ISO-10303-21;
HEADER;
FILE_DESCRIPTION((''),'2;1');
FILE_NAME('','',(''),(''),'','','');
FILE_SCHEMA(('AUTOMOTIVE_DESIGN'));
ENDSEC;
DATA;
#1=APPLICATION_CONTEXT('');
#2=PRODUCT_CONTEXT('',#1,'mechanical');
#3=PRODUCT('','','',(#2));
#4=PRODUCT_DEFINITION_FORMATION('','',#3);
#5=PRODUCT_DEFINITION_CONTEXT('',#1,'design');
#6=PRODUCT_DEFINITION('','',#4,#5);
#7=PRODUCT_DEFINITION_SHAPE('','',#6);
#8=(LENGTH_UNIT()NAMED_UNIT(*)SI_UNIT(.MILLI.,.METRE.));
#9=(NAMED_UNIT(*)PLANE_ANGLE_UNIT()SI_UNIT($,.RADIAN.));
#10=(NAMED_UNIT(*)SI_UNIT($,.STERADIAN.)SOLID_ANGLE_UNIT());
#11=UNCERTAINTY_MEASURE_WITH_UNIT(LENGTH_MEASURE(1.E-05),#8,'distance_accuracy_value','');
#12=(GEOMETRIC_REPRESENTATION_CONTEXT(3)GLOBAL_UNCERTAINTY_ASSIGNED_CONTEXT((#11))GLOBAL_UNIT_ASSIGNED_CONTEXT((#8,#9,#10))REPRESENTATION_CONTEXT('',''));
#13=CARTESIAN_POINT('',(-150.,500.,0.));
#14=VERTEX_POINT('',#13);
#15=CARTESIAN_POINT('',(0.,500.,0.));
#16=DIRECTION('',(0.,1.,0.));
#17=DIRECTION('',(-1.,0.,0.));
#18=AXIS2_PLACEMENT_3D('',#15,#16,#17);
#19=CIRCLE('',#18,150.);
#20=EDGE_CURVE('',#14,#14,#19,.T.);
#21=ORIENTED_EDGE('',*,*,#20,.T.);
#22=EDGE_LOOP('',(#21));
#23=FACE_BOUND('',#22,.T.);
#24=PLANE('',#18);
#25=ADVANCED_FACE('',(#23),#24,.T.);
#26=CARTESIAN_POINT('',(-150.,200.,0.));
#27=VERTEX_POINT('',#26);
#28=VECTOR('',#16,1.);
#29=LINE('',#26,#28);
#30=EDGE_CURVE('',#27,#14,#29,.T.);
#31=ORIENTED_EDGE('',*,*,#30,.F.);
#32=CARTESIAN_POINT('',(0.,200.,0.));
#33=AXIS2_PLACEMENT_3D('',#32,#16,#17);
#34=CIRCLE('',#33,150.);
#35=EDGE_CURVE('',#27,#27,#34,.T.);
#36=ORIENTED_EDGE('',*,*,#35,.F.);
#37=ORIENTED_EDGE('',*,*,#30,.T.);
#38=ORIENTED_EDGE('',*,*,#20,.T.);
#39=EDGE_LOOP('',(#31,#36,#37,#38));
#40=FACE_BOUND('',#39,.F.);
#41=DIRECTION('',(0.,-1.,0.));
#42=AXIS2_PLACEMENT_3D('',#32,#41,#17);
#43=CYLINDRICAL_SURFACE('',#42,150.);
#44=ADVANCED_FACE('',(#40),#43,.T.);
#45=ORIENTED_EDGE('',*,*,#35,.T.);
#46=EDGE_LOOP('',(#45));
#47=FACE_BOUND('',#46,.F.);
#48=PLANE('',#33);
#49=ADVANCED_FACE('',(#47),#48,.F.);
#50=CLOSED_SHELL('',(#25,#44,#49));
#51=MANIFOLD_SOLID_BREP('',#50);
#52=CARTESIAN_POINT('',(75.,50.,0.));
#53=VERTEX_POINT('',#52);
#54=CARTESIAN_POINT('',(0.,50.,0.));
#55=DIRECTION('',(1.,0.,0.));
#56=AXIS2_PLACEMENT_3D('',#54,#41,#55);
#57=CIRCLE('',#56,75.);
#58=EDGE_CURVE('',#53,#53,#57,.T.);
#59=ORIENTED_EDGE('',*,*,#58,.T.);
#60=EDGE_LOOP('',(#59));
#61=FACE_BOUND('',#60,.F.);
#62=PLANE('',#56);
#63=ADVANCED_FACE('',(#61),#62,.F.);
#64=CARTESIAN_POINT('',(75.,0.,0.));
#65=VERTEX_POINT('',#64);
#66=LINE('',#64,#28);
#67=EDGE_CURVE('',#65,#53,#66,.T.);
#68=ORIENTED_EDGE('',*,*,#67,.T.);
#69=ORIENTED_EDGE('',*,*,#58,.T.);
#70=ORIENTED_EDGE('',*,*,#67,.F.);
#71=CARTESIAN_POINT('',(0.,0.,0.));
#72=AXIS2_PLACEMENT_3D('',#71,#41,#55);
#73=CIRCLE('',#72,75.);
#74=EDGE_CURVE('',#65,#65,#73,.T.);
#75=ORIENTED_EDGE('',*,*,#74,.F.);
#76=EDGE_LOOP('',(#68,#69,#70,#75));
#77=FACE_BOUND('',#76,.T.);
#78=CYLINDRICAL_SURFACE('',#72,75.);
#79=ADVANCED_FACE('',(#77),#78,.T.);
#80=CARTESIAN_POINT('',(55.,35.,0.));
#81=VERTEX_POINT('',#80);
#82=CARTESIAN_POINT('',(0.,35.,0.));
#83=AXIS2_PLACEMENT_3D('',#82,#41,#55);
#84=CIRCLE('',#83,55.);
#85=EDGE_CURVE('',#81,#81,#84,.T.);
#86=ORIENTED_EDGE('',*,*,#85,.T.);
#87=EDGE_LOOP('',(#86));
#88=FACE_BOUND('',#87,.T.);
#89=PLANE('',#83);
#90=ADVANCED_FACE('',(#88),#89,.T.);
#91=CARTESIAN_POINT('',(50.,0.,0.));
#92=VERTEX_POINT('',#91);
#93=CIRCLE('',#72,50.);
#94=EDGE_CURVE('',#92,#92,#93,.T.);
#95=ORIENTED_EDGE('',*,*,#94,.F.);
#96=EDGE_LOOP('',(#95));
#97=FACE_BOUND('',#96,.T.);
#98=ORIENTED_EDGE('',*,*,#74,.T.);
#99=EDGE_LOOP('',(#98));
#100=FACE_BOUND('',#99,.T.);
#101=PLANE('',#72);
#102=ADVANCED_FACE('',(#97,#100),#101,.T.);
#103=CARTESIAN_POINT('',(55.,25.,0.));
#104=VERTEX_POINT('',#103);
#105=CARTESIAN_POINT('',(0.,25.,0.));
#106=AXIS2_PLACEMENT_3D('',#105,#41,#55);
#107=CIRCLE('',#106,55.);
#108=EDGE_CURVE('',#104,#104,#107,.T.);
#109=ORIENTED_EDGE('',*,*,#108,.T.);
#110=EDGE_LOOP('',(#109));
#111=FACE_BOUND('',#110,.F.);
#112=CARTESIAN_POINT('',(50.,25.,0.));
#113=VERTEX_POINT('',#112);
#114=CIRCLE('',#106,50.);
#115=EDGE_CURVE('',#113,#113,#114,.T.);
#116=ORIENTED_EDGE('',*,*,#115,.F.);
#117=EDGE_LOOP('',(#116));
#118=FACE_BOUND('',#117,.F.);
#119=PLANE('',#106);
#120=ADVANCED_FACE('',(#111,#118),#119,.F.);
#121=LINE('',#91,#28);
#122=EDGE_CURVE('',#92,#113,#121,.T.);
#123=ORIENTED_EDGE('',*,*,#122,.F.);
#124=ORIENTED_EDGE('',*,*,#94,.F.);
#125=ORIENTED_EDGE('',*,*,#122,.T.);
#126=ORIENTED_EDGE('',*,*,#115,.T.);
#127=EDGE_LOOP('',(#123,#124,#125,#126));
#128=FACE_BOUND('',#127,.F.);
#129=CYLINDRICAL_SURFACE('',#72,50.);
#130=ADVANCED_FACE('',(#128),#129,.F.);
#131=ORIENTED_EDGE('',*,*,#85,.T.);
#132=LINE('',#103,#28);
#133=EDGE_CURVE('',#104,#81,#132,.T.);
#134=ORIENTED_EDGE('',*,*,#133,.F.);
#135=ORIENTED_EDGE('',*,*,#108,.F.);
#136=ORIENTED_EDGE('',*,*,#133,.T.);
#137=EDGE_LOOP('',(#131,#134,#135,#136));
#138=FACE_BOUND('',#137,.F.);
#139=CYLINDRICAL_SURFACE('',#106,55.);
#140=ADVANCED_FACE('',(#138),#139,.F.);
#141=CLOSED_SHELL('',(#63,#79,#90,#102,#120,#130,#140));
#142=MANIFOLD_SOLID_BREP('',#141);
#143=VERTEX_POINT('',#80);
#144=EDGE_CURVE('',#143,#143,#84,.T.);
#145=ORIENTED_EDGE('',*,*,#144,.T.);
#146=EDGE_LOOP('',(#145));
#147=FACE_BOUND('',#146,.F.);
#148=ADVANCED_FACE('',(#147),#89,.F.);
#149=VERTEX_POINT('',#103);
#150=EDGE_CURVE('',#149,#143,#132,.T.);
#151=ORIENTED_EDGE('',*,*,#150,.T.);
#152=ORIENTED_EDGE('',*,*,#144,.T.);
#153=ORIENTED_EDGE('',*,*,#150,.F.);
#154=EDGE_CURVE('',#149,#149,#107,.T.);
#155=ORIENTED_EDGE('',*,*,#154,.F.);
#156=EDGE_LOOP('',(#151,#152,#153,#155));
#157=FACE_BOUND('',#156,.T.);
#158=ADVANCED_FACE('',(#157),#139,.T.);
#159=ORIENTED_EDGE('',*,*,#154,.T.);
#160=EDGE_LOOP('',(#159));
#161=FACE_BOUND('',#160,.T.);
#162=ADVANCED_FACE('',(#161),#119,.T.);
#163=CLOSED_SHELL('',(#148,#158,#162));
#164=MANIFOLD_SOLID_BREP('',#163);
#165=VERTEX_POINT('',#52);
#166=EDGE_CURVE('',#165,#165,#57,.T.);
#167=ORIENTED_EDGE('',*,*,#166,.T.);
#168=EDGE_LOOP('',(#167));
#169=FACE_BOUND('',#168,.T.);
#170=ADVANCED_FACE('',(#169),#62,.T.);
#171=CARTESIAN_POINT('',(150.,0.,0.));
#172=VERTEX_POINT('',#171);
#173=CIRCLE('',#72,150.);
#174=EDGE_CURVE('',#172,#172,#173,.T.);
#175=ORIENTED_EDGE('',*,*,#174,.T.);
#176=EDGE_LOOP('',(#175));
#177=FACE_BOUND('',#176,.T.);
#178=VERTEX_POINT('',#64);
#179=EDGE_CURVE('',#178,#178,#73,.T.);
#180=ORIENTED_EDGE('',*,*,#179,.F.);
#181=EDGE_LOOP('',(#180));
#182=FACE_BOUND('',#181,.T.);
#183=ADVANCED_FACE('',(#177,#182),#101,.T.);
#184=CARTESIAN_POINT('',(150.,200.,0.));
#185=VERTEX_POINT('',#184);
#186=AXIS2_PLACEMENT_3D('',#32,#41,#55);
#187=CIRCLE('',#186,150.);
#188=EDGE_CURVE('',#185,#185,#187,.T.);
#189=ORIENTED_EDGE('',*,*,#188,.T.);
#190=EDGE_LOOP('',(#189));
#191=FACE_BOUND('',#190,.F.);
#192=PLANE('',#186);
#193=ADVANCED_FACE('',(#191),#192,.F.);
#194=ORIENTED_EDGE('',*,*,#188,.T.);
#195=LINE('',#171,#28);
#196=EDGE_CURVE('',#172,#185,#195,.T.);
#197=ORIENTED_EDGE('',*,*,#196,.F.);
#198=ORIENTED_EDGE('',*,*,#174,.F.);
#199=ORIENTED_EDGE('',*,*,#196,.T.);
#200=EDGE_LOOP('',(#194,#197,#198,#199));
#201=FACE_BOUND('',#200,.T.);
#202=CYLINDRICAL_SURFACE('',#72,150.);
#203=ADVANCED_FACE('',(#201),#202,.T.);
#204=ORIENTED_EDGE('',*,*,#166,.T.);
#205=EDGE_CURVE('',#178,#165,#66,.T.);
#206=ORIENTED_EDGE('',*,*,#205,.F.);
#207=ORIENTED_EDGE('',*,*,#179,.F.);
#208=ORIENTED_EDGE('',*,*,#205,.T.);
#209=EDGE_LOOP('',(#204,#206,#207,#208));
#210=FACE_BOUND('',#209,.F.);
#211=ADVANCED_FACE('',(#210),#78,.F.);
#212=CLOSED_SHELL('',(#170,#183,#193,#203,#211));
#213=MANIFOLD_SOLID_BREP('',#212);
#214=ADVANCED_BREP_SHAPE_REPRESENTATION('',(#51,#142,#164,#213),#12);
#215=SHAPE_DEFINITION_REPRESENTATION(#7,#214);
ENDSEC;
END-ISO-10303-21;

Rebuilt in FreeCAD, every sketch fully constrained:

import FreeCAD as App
import Part
import Sketcher
Q = App.Units.Quantity

doc = App.newDocument("Part")
body = doc.addObject("PartDesign::Body", "Body")

# Sketch on XZ plane
sketch1 = body.newObject("Sketcher::SketchObject", "Sketch")
sketch1.AttachmentSupport = (doc.getObject("XZ_Plane"), [""])
sketch1.MapMode = "FlatFace"
sketch1.addGeometry(Part.Circle(App.Vector(0, 0, 0), App.Vector(0, 0, 1), 150), False)
sketch1.addConstraint([
    Sketcher.Constraint("Coincident", 0, 3, -1, 1),
    Sketcher.Constraint("Diameter", 0, Q("300 mm")),
])
pad1 = body.newObject("PartDesign::Pad", "Pad")
pad1.Profile = sketch1
pad1.Length = 200
pad1.Reversed = True

# Sketch on XZ plane
sketch2 = body.newObject("Sketcher::SketchObject", "Sketch001")
sketch2.AttachmentSupport = (doc.getObject("XZ_Plane"), [""])
sketch2.MapMode = "FlatFace"
sketch2.addGeometry(Part.Circle(App.Vector(0, 0, 0), App.Vector(0, 0, 1), 75), False)
sketch2.addConstraint([
    Sketcher.Constraint("Coincident", 0, 3, -1, 1),
    Sketcher.Constraint("Diameter", 0, Q("150 mm")),
])
pocket1 = body.newObject("PartDesign::Pocket", "Pocket")
pocket1.Profile = sketch2
pocket1.Length = 50
body2 = doc.addObject("PartDesign::Body", "Body001")

# Sketch on XZ plane
sketch3 = body2.newObject("Sketcher::SketchObject", "Sketch002")
sketch3.AttachmentSupport = (doc.getObject("XZ_Plane001"), [""])
sketch3.MapMode = "FlatFace"
sketch3.addGeometry(Part.Circle(App.Vector(0, 0, 0), App.Vector(0, 0, 1), 75), False)
sketch3.addConstraint([
    Sketcher.Constraint("Coincident", 0, 3, -1, 1),
    Sketcher.Constraint("Diameter", 0, Q("150 mm")),
])
pad2 = body2.newObject("PartDesign::Pad", "Pad001")
pad2.Profile = sketch3
pad2.Length = 50
pad2.Reversed = True

# Sketch on XZ plane
sketch4 = body2.newObject("Sketcher::SketchObject", "Sketch003")
sketch4.AttachmentSupport = (doc.getObject("XZ_Plane001"), [""])
sketch4.MapMode = "FlatFace"
sketch4.addGeometry(Part.Circle(App.Vector(0, 0, 0), App.Vector(0, 0, 1), 50), False)
sketch4.addConstraint([
    Sketcher.Constraint("Coincident", 0, 3, -1, 1),
    Sketcher.Constraint("Diameter", 0, Q("100 mm")),
])
pocket2 = body2.newObject("PartDesign::Pocket", "Pocket001")
pocket2.Profile = sketch4
pocket2.Length = 25

# Sketch on XZ plane
sketch5 = body2.newObject("Sketcher::SketchObject", "Sketch004")
sketch5.AttachmentSupport = (doc.getObject("XZ_Plane001"), [""])
sketch5.MapMode = "FlatFace"
sketch5.AttachmentOffset = App.Placement(App.Vector(0, 0, -25), App.Rotation())
sketch5.addGeometry(Part.Circle(App.Vector(0, 0, 0), App.Vector(0, 0, 1), 55), False)
sketch5.addConstraint([
    Sketcher.Constraint("Coincident", 0, 3, -1, 1),
    Sketcher.Constraint("Diameter", 0, Q("110 mm")),
])
pocket3 = body2.newObject("PartDesign::Pocket", "Pocket002")
pocket3.Profile = sketch5
pocket3.Length = 10
body3 = doc.addObject("PartDesign::Body", "Body002")

# Sketch on XZ plane
sketch6 = body3.newObject("Sketcher::SketchObject", "Sketch005")
sketch6.AttachmentSupport = (doc.getObject("XZ_Plane002"), [""])
sketch6.MapMode = "FlatFace"
sketch6.AttachmentOffset = App.Placement(App.Vector(0, 0, -25), App.Rotation())
sketch6.addGeometry(Part.Circle(App.Vector(0, 0, 0), App.Vector(0, 0, 1), 55), False)
sketch6.addConstraint([
    Sketcher.Constraint("Coincident", 0, 3, -1, 1),
    Sketcher.Constraint("Diameter", 0, Q("110 mm")),
])
pad3 = body3.newObject("PartDesign::Pad", "Pad002")
pad3.Profile = sketch6
pad3.Length = 10
pad3.Reversed = True
body4 = doc.addObject("PartDesign::Body", "Body003")

# Sketch on XZ plane
sketch7 = body4.newObject("Sketcher::SketchObject", "Sketch006")
sketch7.AttachmentSupport = (doc.getObject("XZ_Plane003"), [""])
sketch7.MapMode = "FlatFace"
sketch7.AttachmentOffset = App.Placement(App.Vector(0, 0, -200), App.Rotation())
sketch7.addGeometry(Part.Circle(App.Vector(0, 0, 0), App.Vector(0, 0, 1), 150), False)
sketch7.addConstraint([
    Sketcher.Constraint("Coincident", 0, 3, -1, 1),
    Sketcher.Constraint("Diameter", 0, Q("300 mm")),
])
pad4 = body4.newObject("PartDesign::Pad", "Pad003")
pad4.Profile = sketch7
pad4.Length = 300
pad4.Reversed = True

doc.recompute()
